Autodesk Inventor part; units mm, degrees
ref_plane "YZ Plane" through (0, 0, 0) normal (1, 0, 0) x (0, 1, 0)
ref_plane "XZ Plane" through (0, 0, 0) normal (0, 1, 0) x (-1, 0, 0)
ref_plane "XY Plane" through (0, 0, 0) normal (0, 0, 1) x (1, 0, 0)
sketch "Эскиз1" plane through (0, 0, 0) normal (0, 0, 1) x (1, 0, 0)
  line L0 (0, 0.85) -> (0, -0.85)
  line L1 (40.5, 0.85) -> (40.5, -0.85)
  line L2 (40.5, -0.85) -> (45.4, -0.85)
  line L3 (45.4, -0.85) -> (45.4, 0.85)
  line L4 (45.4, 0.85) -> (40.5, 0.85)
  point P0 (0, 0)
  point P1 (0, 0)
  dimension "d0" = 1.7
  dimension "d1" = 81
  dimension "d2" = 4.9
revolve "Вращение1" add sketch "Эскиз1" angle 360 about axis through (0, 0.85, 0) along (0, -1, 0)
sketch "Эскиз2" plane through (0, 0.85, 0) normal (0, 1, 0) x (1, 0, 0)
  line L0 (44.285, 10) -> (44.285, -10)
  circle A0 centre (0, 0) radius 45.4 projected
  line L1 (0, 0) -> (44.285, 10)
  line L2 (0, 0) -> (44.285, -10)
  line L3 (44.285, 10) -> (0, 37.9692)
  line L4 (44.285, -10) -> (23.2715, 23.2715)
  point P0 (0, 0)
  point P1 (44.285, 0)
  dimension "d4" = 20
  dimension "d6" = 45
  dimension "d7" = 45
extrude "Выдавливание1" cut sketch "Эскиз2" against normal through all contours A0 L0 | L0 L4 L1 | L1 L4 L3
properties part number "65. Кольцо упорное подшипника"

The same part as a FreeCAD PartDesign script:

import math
import FreeCAD as App
import Part
import Sketcher

V = App.Vector


def add_polygon(sketch, points):
    """Adds a closed chain of lines whose ends are joined by coincident constraints."""
    first, n = sketch.GeometryCount, len(points)
    for a, b in zip(points, points[1:] + points[:1]):
        sketch.addGeometry(Part.LineSegment(App.Vector(*a, 0), App.Vector(*b, 0)), False)
    for i in range(n):
        sketch.addConstraint(Sketcher.Constraint("Coincident", first + i, 2, first + (i + 1) % n, 1))

doc = App.newDocument("Part")
params = doc.addObject("Spreadsheet::Sheet", "Params")
for row, (alias, value) in enumerate([
    ("sketch1_width", "4.9 mm"),
    ("sketch1_height", "1.7 mm"),
    ("revolution_angle", "360 deg"),
    ("sketch2_radius", "45.4 mm"),
], start=1):
    params.set(f"A{row}", alias)
    params.set(f"B{row}", "=" + value)
    params.setAlias(f"B{row}", alias)

body = doc.addObject("PartDesign::Body", "Body")

sketch1 = doc.addObject("Sketcher::SketchObject", "Sketch")
body.addObject(sketch1)
sketch1.AttachmentSupport = (doc.XY_Plane, [""])
sketch1.MapMode = "FlatFace"
add_polygon(sketch1, [(45.4, 0.8), (40.5, 0.8), (40.5, -0.8), (45.4, -0.8)])
sketch1.addConstraint(Sketcher.Constraint("Horizontal", 0))
sketch1.addConstraint(Sketcher.Constraint("Vertical", 1))
sketch1.addConstraint(Sketcher.Constraint("Horizontal", 2))
sketch1.addConstraint(Sketcher.Constraint("Vertical", 3))
sketch1.addConstraint(Sketcher.Constraint("DistanceX", 0, 2, 0, 1, 4.9))
sketch1.addConstraint(Sketcher.Constraint("DistanceY", 1, 2, 1, 1, 1.7))
sketch1.addConstraint(Sketcher.Constraint("DistanceX", -1, 1, 0, 2, 40.5))
sketch1.addConstraint(Sketcher.Constraint("DistanceY", -1, 1, 0, 2, 0.85))
sketch1.setExpression("Constraints[8]", "Params.sketch1_width")
sketch1.setExpression("Constraints[9]", "Params.sketch1_height")
revolution = doc.addObject("PartDesign::Revolution", "Revolution")
body.addObject(revolution)
revolution.Profile = sketch1
revolution.ReferenceAxis = (sketch1, ["V_Axis"])
revolution.setExpression("Angle", "Params.revolution_angle")

sketch2 = doc.addObject("Sketcher::SketchObject", "Sketch001")
body.addObject(sketch2)
sketch2.AttachmentSupport = (doc.XZ_Plane, [""])
sketch2.MapMode = "FlatFace"
sketch2.AttachmentOffset = App.Placement(V(0, 0, -0.85), App.Rotation())
sketch2.addGeometry(Part.LineSegment(V(44, -10, 0), V(23, -23, 0)), False)
sketch2.addGeometry(Part.LineSegment(V(23, -23, 0), V(44, 10, 0)), False)
sketch2.addGeometry(Part.ArcOfCircle(Part.Circle(V(0, 0, 0), V(0, 0, 1), 45), math.radians(-13), math.radians(13)), False)
sketch2.addConstraint(Sketcher.Constraint("Coincident", 0, 2, 1, 1))
sketch2.addConstraint(Sketcher.Constraint("Coincident", 1, 2, 2, 2))
sketch2.addConstraint(Sketcher.Constraint("Coincident", 2, 1, 0, 1))
sketch2.addConstraint(Sketcher.Constraint("Coincident", 2, 3, -1, 1))
sketch2.addConstraint(Sketcher.Constraint("Vertical", 1, 2, 2, 1))
sketch2.addConstraint(Sketcher.Constraint("DistanceY", 2, 1, 1, 2, 20.0))
sketch2.addConstraint(Sketcher.Constraint("Radius", 2, 45.4))
sketch2.addConstraint(Sketcher.Constraint("Distance", 0, 24.8536))
sketch2.addConstraint(Sketcher.Constraint("Distance", 1, 39.3517))
sketch2.setExpression("Constraints[6]", "Params.sketch2_radius")
pocket1 = doc.addObject("PartDesign::Pocket", "Pocket")
body.addObject(pocket1)
pocket1.Profile = sketch2
pocket1.Type = "ThroughAll"
pocket1.Reversed = True

doc.recompute()
